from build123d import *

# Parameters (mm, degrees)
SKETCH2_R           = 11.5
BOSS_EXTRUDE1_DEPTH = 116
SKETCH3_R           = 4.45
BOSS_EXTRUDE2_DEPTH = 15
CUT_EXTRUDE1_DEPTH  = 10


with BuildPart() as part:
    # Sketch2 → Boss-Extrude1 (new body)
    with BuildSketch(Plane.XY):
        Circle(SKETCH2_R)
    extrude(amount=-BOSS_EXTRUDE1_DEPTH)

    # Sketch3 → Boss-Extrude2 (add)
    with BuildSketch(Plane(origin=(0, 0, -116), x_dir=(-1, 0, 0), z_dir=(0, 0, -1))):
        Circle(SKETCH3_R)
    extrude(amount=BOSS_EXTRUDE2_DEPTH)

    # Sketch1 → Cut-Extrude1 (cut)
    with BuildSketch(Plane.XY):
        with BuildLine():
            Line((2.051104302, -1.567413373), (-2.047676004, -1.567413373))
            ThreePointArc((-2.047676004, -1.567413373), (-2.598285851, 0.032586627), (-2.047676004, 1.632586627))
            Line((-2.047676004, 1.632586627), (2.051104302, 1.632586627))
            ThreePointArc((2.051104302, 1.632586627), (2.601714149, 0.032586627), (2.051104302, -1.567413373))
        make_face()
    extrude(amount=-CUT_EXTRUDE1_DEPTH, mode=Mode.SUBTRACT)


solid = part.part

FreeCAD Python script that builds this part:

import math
import FreeCAD as App
import Part
import Sketcher
from FreeCAD import Vector

doc = App.newDocument("Part")
body = doc.addObject("PartDesign::Body", "Body")

sketch1 = doc.addObject("Sketcher::SketchObject", "Sketch")
body.addObject(sketch1)
sketch1.AttachmentSupport = (doc.XY_Plane, [""])
sketch1.MapMode = "FlatFace"
sketch1.addGeometry(Part.Circle(Vector(0, 0, 0), Vector(0, 0, 1), 11.5), False)
sketch1.addConstraint([
    Sketcher.Constraint("Coincident", 0, 3, -1, 1),
    Sketcher.Constraint("Diameter", 0, 23.0),
])
pad1 = doc.addObject("PartDesign::Pad", "Pad")
body.addObject(pad1)
pad1.Profile = sketch1
pad1.Length = 116
pad1.Reversed = True

sketch2 = doc.addObject("Sketcher::SketchObject", "Sketch001")
body.addObject(sketch2)
sketch2.AttachmentSupport = (doc.XY_Plane, [""])
sketch2.MapMode = "FlatFace"
sketch2.AttachmentOffset = App.Placement(Vector(0, 0, -116), App.Rotation())
sketch2.addGeometry(Part.Circle(Vector(0, 0, 0), Vector(0, 0, 1), 4.45), False)
sketch2.addConstraint([
    Sketcher.Constraint("Coincident", 0, 3, -1, 1),
    Sketcher.Constraint("Diameter", 0, 8.9),
])
pad2 = doc.addObject("PartDesign::Pad", "Pad001")
body.addObject(pad2)
pad2.Profile = sketch2
pad2.Length = 15
pad2.Reversed = True

sketch3 = doc.addObject("Sketcher::SketchObject", "Sketch002")
body.addObject(sketch3)
sketch3.AttachmentSupport = (doc.XY_Plane, [""])
sketch3.MapMode = "FlatFace"
sketch3.addGeometry([
    Part.LineSegment(Vector(-2.047676, -1.567413, 0), Vector(2.051104, -1.567413, 0)),
    Part.ArcOfCircle(Part.Circle(Vector(0.001714, 0.032587, 0), Vector(0, 0, 1), 2.6), math.radians(-37.979872), math.radians(37.979872)),
    Part.LineSegment(Vector(2.051104, 1.632587, 0), Vector(-2.047676, 1.632587, 0)),
    Part.ArcOfCircle(Part.Circle(Vector(0.001714, 0.032587, 0), Vector(0, 0, 1), 2.6), math.radians(142.020128), math.radians(217.979872)),
], False)
sketch3.addConstraint([
    Sketcher.Constraint("Coincident", 0, 2, 1, 1),
    Sketcher.Constraint("Coincident", 1, 2, 2, 1),
    Sketcher.Constraint("Coincident", 2, 2, 3, 1),
    Sketcher.Constraint("Coincident", 3, 2, 0, 1),
    Sketcher.Constraint("Horizontal", 0),
    Sketcher.Constraint("Horizontal", 2),
    Sketcher.Constraint("Coincident", 3, 3, 1, 3),
    Sketcher.Constraint("Equal", 1, 3),
    Sketcher.Constraint("Vertical", 0, 2, 1, 2),
    Sketcher.Constraint("Radius", 1, 2.6),
    Sketcher.Constraint("DistanceY", 0, 2, 1, 3, 1.6),
    Sketcher.Constraint("DistanceX", -1, 1, 1, 3, 0.001714),
    Sketcher.Constraint("DistanceY", -1, 1, 1, 3, 0.032587),
])
pocket1 = doc.addObject("PartDesign::Pocket", "Pocket")
body.addObject(pocket1)
pocket1.Profile = sketch3
pocket1.Length = 10

doc.recompute()
